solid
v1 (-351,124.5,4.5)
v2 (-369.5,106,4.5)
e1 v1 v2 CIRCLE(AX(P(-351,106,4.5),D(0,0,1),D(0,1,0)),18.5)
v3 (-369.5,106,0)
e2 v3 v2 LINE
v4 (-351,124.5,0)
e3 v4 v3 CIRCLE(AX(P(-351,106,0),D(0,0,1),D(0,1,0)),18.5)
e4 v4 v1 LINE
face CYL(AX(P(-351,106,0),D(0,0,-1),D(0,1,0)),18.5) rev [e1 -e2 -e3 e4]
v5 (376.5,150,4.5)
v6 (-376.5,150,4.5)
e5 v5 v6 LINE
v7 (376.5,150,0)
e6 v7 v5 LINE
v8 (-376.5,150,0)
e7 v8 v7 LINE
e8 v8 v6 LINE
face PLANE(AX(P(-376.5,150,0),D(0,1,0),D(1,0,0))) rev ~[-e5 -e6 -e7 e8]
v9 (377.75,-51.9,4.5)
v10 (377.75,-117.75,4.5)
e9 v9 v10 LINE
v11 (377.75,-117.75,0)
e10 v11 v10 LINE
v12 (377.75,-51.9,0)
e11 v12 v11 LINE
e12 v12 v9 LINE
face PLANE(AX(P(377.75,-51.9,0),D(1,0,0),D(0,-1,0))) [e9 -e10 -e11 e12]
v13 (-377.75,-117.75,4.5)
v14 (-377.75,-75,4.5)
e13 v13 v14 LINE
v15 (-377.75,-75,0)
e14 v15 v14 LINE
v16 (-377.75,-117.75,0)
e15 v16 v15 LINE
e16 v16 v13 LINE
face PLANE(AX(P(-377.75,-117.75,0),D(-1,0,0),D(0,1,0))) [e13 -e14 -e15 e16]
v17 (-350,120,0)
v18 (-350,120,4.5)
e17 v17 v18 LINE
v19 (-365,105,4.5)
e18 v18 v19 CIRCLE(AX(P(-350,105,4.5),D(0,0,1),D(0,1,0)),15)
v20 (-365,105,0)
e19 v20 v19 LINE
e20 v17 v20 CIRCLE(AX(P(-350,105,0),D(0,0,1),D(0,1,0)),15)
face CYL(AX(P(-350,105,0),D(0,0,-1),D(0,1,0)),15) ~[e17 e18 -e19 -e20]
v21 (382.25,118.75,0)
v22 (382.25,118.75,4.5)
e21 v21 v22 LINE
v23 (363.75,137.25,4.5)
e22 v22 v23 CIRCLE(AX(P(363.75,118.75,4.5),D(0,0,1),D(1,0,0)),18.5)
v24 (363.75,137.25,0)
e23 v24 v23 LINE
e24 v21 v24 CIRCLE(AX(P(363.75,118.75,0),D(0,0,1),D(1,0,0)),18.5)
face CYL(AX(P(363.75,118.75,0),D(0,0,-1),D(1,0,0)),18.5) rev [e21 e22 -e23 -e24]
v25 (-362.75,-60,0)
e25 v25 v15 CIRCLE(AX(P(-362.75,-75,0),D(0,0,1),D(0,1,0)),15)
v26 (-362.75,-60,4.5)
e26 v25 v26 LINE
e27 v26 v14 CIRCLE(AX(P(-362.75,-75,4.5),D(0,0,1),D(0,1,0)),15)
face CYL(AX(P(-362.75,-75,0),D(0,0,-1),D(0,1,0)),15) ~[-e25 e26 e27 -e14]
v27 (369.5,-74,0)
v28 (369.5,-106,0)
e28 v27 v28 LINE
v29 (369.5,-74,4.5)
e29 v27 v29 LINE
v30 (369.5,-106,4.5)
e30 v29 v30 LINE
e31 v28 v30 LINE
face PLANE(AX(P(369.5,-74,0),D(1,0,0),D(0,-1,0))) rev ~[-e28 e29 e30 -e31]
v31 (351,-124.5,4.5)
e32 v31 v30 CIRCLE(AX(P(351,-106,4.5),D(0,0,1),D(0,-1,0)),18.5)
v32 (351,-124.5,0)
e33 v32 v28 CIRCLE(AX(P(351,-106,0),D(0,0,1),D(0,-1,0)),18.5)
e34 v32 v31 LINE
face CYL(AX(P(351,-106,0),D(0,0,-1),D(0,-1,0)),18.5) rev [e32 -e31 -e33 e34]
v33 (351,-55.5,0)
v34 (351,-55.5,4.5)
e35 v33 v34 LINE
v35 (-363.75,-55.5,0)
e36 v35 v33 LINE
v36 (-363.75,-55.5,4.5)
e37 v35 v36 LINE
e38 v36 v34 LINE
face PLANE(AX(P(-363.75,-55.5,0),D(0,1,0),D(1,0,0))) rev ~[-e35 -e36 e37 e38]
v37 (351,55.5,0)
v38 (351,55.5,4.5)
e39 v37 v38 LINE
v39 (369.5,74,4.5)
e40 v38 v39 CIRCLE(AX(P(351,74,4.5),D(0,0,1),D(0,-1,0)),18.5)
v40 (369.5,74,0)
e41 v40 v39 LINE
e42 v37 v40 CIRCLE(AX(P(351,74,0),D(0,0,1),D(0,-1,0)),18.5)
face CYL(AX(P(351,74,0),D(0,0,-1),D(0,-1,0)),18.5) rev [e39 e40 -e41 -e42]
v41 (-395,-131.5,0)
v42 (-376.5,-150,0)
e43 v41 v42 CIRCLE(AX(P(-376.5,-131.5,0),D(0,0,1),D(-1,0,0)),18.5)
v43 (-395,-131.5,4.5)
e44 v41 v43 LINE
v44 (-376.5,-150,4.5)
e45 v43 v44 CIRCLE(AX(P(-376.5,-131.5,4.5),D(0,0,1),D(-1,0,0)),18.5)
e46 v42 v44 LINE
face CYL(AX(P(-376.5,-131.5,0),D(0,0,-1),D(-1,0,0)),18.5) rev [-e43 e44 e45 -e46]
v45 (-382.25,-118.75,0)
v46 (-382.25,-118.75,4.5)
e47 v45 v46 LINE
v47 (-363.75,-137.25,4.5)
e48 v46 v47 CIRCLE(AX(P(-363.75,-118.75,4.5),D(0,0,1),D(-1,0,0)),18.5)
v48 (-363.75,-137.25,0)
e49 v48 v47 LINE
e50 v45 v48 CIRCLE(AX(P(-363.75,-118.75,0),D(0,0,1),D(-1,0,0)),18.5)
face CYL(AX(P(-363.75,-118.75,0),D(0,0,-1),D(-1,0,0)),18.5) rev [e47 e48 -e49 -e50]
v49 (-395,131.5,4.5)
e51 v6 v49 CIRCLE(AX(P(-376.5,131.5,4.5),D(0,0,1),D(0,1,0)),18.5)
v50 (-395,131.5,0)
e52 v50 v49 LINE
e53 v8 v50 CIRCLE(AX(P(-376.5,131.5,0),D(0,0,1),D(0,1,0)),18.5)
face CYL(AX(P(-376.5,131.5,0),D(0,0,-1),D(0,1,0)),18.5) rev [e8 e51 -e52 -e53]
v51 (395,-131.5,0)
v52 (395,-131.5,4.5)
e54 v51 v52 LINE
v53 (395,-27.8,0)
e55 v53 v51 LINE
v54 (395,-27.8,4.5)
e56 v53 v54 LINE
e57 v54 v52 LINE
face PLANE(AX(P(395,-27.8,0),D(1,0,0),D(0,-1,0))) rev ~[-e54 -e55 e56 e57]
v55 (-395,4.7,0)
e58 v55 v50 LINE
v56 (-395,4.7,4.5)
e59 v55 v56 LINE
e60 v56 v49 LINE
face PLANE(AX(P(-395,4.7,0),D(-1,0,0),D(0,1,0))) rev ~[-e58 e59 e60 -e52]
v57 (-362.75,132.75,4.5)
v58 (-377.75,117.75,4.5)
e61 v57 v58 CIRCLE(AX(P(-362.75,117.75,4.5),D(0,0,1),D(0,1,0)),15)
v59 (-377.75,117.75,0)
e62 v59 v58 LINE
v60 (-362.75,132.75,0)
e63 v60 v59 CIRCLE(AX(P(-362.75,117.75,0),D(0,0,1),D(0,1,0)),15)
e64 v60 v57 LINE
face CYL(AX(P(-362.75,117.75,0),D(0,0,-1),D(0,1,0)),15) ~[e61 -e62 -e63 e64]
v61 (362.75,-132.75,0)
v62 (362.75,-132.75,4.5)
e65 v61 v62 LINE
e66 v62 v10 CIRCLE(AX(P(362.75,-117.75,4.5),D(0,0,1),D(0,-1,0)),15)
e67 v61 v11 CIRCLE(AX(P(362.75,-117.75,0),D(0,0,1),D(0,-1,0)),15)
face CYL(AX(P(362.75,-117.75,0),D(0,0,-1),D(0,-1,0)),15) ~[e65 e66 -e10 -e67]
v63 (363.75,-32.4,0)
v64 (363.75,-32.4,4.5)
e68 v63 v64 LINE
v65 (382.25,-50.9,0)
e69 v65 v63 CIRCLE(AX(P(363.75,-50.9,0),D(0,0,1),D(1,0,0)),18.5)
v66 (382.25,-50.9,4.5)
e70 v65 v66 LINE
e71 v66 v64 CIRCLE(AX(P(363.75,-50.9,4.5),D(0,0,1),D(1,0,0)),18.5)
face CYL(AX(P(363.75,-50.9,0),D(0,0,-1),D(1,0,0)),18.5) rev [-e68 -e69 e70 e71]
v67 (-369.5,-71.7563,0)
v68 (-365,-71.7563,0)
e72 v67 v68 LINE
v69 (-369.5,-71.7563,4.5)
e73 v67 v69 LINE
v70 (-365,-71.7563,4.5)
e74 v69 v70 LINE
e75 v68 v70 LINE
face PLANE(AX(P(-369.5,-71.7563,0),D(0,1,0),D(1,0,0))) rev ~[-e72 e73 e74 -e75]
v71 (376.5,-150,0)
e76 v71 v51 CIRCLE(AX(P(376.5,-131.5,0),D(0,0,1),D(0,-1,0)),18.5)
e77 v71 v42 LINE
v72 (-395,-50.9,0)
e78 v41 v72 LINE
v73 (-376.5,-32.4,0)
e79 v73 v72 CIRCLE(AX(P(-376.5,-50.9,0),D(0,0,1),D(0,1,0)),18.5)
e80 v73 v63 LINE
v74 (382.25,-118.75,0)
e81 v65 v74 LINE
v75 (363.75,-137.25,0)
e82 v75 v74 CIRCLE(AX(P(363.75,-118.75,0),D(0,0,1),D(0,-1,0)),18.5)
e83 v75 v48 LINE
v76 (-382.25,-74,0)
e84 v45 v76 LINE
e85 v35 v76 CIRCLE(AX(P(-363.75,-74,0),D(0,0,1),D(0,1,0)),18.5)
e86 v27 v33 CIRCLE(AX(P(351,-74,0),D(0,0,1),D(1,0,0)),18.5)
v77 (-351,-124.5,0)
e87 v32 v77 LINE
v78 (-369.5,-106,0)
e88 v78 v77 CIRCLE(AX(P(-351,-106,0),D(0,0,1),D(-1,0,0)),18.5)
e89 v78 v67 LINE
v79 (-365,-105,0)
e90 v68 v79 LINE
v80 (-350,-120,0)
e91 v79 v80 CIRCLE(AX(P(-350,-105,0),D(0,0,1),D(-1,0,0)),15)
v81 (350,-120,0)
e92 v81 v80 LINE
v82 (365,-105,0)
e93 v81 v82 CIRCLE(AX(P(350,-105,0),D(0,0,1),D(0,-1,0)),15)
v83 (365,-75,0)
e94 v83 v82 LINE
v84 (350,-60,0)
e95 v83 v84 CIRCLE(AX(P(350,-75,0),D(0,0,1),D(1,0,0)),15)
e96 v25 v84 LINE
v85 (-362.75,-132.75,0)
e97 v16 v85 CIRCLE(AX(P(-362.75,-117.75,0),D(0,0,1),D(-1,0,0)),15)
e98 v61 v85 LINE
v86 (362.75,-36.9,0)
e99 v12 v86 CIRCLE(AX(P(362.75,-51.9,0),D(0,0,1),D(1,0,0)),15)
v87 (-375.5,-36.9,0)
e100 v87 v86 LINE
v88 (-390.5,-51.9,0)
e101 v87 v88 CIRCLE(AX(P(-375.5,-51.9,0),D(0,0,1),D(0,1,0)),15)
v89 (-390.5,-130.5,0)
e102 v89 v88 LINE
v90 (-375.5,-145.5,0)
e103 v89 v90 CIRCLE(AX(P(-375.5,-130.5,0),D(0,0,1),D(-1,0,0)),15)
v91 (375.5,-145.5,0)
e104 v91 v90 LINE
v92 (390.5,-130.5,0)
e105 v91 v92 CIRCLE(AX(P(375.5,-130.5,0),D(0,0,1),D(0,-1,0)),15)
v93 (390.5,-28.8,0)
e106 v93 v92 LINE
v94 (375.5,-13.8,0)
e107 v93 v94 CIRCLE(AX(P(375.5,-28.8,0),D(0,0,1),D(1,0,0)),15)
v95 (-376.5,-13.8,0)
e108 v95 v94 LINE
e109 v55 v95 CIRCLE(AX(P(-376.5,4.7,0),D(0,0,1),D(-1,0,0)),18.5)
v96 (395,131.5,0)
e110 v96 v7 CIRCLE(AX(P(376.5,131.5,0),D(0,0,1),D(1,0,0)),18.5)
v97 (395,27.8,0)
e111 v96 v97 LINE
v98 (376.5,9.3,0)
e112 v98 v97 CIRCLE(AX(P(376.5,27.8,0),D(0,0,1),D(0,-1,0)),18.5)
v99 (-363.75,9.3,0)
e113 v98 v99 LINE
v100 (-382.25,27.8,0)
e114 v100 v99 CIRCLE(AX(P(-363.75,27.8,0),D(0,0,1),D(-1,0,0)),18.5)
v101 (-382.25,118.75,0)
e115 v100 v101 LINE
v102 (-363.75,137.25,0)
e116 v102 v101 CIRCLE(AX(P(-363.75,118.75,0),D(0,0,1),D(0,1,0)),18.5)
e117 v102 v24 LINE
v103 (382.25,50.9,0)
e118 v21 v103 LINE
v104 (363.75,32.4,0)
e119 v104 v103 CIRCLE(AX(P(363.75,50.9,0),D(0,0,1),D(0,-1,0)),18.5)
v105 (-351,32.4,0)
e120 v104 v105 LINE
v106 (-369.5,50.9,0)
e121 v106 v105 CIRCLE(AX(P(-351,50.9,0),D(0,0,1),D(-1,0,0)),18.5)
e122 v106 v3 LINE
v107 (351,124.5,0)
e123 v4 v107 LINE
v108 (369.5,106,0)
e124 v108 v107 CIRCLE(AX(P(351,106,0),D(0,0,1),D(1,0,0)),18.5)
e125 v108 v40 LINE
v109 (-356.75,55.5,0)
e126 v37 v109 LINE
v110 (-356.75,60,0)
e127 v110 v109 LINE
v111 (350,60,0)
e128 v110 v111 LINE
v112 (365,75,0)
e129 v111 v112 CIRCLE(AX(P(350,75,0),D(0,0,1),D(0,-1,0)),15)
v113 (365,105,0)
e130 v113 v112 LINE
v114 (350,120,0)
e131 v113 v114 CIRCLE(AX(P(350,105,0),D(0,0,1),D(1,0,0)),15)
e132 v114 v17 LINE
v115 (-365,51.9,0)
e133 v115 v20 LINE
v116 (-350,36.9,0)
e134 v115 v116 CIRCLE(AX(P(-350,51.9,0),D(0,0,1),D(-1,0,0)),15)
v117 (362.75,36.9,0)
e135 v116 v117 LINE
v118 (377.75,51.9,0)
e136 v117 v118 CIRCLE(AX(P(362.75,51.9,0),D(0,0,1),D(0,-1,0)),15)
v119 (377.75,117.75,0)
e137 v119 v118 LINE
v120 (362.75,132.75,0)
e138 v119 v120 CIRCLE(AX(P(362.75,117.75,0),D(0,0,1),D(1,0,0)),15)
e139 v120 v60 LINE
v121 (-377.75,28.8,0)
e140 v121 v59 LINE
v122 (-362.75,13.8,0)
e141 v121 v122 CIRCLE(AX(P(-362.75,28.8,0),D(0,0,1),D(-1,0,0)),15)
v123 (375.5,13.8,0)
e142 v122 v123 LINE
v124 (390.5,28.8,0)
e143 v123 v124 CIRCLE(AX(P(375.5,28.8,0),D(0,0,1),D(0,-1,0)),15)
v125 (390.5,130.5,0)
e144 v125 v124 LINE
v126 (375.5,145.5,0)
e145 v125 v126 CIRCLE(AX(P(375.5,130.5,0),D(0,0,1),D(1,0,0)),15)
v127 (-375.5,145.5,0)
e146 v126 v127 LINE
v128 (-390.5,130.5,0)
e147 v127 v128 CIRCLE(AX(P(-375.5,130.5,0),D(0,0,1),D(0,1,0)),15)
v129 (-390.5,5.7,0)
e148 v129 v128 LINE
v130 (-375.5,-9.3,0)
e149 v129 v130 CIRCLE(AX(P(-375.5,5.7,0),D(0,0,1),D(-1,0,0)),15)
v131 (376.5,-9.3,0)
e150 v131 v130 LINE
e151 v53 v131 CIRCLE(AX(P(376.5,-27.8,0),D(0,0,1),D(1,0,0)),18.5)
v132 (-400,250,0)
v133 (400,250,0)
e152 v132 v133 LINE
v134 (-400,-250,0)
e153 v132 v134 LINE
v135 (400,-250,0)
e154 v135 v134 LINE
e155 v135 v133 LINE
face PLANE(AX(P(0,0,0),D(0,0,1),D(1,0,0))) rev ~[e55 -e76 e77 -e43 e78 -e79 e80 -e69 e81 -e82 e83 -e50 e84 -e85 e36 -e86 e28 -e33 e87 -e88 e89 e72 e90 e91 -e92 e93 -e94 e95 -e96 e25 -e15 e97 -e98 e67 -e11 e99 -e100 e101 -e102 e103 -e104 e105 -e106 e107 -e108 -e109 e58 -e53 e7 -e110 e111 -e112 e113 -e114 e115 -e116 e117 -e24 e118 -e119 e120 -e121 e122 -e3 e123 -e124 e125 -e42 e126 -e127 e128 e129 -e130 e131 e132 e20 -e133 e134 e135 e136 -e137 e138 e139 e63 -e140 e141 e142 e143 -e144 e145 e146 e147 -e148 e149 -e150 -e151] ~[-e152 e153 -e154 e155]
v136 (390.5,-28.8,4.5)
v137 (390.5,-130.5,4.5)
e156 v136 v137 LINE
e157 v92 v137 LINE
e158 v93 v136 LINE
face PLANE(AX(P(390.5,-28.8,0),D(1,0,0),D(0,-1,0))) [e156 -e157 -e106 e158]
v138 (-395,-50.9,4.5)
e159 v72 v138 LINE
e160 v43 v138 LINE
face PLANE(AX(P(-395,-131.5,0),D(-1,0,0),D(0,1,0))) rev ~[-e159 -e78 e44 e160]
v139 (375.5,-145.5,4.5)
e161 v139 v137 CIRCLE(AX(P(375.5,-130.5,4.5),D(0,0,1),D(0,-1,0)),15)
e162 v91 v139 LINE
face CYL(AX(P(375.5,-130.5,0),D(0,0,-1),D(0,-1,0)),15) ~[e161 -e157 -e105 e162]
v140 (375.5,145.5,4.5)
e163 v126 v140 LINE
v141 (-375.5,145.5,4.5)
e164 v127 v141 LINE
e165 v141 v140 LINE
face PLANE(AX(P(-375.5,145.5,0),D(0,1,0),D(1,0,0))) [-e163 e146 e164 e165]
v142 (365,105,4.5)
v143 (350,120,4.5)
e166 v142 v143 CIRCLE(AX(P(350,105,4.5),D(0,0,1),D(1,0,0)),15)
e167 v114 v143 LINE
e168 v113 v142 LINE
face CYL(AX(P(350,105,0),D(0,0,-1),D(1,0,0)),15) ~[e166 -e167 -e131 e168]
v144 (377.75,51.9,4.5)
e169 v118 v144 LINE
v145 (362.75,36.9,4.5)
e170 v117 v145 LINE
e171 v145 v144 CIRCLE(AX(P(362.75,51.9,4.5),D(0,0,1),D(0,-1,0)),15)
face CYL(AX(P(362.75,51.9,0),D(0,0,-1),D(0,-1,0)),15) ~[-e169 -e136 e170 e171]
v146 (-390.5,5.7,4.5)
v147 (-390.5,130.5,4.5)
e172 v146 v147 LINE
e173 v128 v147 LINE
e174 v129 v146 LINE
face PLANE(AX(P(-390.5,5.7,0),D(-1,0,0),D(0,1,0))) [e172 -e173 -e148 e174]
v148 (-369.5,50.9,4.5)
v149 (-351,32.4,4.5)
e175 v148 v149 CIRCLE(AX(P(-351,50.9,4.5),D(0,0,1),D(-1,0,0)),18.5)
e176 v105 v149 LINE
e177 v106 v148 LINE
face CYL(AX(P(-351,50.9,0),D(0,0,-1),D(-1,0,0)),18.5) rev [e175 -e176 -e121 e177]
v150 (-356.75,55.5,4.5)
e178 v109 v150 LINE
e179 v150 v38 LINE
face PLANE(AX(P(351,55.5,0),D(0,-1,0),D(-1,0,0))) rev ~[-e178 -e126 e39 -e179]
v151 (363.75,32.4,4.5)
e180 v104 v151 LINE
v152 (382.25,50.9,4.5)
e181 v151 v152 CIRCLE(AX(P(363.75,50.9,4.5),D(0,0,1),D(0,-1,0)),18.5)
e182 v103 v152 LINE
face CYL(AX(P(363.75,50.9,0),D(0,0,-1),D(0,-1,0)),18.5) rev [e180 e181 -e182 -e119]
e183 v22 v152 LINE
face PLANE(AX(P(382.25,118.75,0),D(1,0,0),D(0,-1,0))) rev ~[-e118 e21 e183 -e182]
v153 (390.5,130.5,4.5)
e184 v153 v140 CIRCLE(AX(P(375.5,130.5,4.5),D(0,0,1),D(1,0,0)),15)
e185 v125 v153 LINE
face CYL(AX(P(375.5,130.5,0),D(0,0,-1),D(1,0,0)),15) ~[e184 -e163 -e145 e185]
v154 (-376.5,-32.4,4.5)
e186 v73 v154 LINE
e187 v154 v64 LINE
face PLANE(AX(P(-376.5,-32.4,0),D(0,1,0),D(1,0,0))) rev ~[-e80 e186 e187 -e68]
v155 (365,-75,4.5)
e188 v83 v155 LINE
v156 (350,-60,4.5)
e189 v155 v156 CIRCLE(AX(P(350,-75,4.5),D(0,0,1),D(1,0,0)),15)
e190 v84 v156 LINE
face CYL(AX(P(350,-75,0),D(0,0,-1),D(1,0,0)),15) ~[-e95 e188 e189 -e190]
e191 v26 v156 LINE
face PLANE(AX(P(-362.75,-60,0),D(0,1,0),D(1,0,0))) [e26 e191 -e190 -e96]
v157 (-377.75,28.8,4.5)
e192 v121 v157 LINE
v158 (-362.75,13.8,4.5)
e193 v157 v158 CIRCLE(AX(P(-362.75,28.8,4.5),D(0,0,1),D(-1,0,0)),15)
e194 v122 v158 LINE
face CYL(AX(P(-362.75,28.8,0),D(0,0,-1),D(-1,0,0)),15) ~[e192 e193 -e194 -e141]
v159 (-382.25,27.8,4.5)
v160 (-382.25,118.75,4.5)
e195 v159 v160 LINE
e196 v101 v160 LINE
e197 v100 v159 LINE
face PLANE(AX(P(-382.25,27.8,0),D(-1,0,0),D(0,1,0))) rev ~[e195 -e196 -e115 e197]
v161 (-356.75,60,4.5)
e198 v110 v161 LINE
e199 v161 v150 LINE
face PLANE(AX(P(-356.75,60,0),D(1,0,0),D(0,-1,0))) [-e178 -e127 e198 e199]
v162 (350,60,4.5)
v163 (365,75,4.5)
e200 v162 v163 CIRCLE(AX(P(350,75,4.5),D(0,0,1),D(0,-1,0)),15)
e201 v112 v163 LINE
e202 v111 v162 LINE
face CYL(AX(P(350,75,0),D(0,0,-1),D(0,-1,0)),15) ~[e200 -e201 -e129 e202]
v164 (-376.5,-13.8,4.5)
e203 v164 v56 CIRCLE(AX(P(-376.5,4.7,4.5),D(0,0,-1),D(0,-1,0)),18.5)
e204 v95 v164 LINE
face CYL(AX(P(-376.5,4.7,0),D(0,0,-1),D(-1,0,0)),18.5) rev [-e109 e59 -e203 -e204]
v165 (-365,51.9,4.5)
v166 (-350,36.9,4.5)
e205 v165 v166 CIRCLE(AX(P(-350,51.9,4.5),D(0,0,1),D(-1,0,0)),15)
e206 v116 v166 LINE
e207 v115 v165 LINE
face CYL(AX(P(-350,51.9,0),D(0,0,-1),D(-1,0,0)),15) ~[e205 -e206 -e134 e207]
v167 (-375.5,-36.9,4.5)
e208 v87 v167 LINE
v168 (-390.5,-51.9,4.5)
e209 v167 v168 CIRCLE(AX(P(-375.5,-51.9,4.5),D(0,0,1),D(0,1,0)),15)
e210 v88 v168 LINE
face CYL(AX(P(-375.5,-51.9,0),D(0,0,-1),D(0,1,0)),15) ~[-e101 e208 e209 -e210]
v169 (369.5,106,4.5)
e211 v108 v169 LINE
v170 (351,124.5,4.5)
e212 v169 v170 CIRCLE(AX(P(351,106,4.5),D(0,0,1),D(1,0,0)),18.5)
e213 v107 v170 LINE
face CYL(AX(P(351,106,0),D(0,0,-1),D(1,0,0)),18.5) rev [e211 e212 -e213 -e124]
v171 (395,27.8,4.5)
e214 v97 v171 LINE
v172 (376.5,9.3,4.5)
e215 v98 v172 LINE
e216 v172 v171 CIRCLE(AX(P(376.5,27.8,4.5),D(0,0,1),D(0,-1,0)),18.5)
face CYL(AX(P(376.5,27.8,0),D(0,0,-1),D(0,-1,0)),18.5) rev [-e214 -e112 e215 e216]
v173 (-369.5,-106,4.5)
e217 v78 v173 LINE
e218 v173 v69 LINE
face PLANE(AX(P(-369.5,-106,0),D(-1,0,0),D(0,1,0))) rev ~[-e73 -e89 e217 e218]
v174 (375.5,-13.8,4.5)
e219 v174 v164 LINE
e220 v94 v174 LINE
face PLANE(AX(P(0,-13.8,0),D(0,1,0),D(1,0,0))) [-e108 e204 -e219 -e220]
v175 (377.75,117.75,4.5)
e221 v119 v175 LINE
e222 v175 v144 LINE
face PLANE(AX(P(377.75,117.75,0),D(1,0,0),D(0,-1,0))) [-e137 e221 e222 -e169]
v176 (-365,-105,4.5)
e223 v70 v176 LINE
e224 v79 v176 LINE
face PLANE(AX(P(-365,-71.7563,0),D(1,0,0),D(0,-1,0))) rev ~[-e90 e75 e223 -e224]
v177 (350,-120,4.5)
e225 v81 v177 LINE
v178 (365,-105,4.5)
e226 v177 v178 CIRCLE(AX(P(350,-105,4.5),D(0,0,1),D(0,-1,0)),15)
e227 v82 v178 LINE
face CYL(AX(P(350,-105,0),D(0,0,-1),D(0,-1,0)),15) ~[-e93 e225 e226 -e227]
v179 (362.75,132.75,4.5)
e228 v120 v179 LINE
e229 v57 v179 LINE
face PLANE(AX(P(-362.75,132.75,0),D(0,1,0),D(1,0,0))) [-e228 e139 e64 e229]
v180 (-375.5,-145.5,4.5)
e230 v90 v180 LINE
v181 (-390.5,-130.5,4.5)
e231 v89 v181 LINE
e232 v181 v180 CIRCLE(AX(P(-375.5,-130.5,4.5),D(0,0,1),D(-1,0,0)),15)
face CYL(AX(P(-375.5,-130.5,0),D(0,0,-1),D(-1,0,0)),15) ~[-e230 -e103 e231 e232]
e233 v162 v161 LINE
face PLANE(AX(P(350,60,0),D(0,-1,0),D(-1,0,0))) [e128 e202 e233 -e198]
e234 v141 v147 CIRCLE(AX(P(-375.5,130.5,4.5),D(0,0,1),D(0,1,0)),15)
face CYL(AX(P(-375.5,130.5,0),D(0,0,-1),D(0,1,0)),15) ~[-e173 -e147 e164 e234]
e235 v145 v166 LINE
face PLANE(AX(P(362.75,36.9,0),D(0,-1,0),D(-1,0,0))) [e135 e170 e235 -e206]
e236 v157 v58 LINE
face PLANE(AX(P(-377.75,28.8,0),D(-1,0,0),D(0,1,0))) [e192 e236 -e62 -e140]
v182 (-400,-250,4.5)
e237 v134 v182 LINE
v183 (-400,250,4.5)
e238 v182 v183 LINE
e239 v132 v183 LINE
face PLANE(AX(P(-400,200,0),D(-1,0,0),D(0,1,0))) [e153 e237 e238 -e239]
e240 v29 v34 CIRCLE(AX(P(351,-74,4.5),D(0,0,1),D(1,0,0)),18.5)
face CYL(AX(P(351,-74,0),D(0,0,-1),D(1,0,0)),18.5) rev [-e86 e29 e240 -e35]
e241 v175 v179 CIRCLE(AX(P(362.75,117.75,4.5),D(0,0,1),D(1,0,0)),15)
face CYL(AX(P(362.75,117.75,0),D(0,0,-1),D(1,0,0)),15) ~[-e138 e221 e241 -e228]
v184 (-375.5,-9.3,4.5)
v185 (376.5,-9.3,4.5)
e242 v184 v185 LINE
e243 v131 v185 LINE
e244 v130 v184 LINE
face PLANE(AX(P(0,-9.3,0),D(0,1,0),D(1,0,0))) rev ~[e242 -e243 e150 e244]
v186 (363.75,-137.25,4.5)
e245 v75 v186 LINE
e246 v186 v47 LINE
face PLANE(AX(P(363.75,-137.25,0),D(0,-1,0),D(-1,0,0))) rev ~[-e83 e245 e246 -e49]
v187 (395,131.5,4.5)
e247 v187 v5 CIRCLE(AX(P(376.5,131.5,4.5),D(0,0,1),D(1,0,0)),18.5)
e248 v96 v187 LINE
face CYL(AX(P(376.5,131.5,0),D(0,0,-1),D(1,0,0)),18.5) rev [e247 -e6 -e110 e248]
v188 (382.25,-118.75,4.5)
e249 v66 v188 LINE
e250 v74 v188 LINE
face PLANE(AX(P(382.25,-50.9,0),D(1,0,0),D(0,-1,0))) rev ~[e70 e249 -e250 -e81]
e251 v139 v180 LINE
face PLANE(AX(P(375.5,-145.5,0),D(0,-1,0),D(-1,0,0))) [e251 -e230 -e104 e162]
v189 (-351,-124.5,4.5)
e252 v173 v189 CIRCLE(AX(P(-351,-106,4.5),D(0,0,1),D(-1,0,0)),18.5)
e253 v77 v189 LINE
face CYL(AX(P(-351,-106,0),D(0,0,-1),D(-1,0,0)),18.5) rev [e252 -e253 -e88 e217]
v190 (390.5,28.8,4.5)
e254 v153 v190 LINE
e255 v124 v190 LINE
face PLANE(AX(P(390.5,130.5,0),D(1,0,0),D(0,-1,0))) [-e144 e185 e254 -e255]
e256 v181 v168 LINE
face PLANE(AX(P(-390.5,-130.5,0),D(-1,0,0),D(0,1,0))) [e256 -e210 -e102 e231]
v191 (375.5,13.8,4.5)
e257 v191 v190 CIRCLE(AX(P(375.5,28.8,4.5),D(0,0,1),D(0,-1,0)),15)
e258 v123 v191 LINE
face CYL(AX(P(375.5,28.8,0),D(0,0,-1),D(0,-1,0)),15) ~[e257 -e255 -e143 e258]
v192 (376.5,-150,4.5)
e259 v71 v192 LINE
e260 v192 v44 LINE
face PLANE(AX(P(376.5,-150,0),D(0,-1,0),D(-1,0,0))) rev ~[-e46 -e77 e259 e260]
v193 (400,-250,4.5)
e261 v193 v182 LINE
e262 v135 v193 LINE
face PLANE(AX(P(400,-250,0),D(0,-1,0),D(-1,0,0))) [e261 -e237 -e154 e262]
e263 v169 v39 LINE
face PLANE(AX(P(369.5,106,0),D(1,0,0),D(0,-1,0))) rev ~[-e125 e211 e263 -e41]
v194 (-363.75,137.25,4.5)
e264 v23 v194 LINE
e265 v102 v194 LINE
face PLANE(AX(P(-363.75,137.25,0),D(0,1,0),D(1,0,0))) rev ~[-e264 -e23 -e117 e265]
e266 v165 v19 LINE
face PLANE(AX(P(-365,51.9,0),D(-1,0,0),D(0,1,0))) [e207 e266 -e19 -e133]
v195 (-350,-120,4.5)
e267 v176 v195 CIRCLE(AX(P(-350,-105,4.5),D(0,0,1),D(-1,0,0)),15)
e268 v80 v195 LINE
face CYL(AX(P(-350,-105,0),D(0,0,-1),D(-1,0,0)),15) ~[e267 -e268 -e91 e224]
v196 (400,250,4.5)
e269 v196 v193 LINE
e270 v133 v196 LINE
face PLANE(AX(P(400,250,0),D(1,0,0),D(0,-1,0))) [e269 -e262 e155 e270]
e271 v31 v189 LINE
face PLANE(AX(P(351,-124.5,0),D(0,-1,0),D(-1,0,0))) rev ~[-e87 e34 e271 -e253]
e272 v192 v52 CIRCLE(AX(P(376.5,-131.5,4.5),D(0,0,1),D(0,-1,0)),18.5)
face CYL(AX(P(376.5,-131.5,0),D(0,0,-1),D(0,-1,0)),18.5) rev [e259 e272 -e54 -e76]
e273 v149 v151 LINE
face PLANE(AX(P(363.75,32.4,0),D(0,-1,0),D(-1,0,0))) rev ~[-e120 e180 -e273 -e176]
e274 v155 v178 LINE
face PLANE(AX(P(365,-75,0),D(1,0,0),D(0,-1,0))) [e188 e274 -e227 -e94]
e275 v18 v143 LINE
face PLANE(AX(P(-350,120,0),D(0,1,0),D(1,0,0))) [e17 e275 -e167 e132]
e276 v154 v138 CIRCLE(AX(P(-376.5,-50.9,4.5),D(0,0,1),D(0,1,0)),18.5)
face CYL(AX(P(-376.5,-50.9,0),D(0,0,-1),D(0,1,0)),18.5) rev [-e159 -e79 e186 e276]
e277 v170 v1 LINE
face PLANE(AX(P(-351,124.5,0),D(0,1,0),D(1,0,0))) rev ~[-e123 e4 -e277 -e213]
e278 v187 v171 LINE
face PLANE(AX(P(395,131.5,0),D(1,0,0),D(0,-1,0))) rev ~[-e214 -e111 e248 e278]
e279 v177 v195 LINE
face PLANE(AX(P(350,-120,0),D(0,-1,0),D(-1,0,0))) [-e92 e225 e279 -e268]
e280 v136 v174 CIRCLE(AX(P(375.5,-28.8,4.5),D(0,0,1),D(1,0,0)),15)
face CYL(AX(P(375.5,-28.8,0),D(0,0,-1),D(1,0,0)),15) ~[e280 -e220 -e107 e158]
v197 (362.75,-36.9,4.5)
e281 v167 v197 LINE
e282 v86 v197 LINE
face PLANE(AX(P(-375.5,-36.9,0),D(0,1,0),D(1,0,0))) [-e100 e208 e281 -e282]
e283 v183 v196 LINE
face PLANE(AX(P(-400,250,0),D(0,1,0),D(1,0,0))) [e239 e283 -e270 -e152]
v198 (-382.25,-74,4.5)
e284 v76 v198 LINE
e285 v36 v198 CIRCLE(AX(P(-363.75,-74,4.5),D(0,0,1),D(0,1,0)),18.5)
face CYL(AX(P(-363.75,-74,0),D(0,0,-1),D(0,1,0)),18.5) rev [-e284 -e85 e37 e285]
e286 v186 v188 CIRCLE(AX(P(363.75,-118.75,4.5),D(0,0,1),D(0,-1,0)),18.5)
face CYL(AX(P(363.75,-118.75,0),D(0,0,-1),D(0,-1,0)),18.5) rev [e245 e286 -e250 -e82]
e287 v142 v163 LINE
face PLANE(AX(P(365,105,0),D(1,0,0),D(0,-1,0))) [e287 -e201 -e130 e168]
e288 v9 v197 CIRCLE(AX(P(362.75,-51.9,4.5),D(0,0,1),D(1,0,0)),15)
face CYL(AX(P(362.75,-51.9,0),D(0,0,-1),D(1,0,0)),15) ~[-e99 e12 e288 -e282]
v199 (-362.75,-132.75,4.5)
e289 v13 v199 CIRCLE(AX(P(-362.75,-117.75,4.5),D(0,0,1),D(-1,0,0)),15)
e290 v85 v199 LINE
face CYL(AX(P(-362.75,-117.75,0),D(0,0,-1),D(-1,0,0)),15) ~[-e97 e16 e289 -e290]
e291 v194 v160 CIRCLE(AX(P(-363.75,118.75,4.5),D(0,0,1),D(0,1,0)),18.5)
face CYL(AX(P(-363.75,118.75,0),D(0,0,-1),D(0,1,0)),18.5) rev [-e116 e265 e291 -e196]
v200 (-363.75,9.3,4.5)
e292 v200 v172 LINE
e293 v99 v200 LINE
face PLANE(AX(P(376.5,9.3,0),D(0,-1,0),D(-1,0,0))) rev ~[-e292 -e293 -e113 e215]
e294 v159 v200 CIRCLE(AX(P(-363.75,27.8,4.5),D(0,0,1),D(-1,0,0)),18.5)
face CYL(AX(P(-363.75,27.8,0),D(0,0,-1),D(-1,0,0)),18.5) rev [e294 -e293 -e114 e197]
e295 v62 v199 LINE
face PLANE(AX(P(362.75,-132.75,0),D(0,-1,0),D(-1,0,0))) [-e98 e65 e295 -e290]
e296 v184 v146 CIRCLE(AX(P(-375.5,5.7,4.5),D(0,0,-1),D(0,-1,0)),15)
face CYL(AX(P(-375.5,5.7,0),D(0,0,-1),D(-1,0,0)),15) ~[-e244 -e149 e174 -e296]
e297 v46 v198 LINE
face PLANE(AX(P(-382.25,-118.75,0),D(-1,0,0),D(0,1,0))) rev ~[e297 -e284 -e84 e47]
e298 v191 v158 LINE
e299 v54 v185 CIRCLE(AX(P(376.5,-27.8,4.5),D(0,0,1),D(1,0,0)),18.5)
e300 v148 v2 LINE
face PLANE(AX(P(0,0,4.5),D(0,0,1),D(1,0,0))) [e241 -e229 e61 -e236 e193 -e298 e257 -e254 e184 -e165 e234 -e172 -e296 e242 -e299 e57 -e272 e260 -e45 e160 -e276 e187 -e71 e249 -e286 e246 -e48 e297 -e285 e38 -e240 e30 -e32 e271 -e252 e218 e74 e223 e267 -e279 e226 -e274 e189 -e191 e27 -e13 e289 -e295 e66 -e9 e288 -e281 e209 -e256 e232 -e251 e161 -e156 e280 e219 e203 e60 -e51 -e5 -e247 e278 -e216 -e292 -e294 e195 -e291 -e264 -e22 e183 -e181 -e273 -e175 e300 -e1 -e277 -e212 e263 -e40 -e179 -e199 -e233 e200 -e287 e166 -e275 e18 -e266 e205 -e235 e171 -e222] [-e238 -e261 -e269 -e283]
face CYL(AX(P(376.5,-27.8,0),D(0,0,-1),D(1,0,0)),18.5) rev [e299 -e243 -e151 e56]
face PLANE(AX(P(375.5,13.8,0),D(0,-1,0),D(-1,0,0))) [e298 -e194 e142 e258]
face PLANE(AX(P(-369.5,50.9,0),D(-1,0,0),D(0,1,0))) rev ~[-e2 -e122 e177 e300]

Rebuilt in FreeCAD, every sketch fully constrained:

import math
import FreeCAD as App
import Part
import Sketcher
from FreeCAD import Vector
Q = App.Units.Quantity

doc = App.newDocument("Part")
body = doc.addObject("PartDesign::Body", "Body")

# Sketch on XY plane
sketch1 = body.newObject("Sketcher::SketchObject", "Sketch")
sketch1.AttachmentSupport = (doc.getObject("XY_Plane"), [""])
sketch1.MapMode = "FlatFace"
sketch1.addGeometry([
    Part.LineSegment(Vector(400, 250, 0), Vector(-400, 250, 0)),
    Part.LineSegment(Vector(-400, 250, 0), Vector(-400, -250, 0)),
    Part.LineSegment(Vector(-400, -250, 0), Vector(400, -250, 0)),
    Part.LineSegment(Vector(400, -250, 0), Vector(400, 250, 0)),
], False)
sketch1.addConstraint([
    Sketcher.Constraint("Coincident", 0, 2, 1, 1),
    Sketcher.Constraint("Coincident", 1, 2, 2, 1),
    Sketcher.Constraint("Coincident", 2, 2, 3, 1),
    Sketcher.Constraint("Coincident", 3, 2, 0, 1),
    Sketcher.Constraint("Horizontal", 0),
    Sketcher.Constraint("Vertical", 1),
    Sketcher.Constraint("Horizontal", 2),
    Sketcher.Constraint("Vertical", 3),
    Sketcher.Constraint("Symmetric", 0, 2, 2, 2, -1, 1),
    Sketcher.Constraint("DistanceX", 0, 2, 0, 1, Q("800 mm")),
    Sketcher.Constraint("DistanceY", 1, 2, 1, 1, Q("500 mm")),
])
pad1 = body.newObject("PartDesign::Pad", "Pad")
pad1.Profile = sketch1
pad1.Length = 4.5

# Sketch on XY plane
sketch2 = body.newObject("Sketcher::SketchObject", "Sketch001")
sketch2.AttachmentSupport = (doc.getObject("XY_Plane"), [""])
sketch2.MapMode = "FlatFace"
sketch2.addGeometry([
    Part.LineSegment(Vector(-376.5, -13.8, 0), Vector(0, -13.8, 0)),  # 0
    Part.LineSegment(Vector(0, -13.8, 0), Vector(0, -9.3, 0)),  # 1
    Part.LineSegment(Vector(0, -9.3, 0), Vector(-375.5, -9.3, 0)),  # 2
    Part.ArcOfCircle(Part.Circle(Vector(-375.5, 5.7, 0), Vector(0, 0, 1), 15), math.radians(180), math.radians(270)),  # 3
    Part.LineSegment(Vector(-390.5, 5.7, 0), Vector(-390.5, 130.5, 0)),  # 4
    Part.ArcOfCircle(Part.Circle(Vector(-375.5, 130.5, 0), Vector(0, 0, 1), 15), math.radians(90), math.radians(180)),  # 5
    Part.LineSegment(Vector(-375.5, 145.5, 0), Vector(375.5, 145.5, 0)),  # 6
    Part.ArcOfCircle(Part.Circle(Vector(375.5, 130.5, 0), Vector(0, 0, 1), 15), math.radians(0), math.radians(90)),  # 7
    Part.LineSegment(Vector(390.5, 130.5, 0), Vector(390.5, 28.8, 0)),  # 8
    Part.ArcOfCircle(Part.Circle(Vector(375.5, 28.8, 0), Vector(0, 0, 1), 15), math.radians(-90), math.radians(0)),  # 9
    Part.LineSegment(Vector(375.5, 13.8, 0), Vector(-362.8, 13.8, 0)),  # 10
    Part.ArcOfCircle(Part.Circle(Vector(-362.8, 28.8, 0), Vector(0, 0, 1), 15), math.radians(180), math.radians(270)),  # 11
    Part.LineSegment(Vector(-377.8, 28.8, 0), Vector(-377.8, 117.8, 0)),  # 12
    Part.ArcOfCircle(Part.Circle(Vector(-362.8, 117.8, 0), Vector(0, 0, 1), 15), math.radians(90), math.radians(180)),  # 13
    Part.LineSegment(Vector(-362.8, 132.8, 0), Vector(362.8, 132.8, 0)),  # 14
    Part.ArcOfCircle(Part.Circle(Vector(362.8, 117.8, 0), Vector(0, 0, 1), 15), math.radians(0), math.radians(90)),  # 15
    Part.LineSegment(Vector(377.8, 117.8, 0), Vector(377.8, 51.9, 0)),  # 16
    Part.ArcOfCircle(Part.Circle(Vector(362.8, 51.9, 0), Vector(0, 0, 1), 15), math.radians(-90), math.radians(0)),  # 17
    Part.LineSegment(Vector(362.8, 36.9, 0), Vector(-350, 36.9, 0)),  # 18
    Part.ArcOfCircle(Part.Circle(Vector(-350, 51.9, 0), Vector(0, 0, 1), 15), math.radians(180), math.radians(270)),  # 19
    Part.LineSegment(Vector(-365, 51.9, 0), Vector(-365, 105, 0)),  # 20
    Part.ArcOfCircle(Part.Circle(Vector(-350, 105, 0), Vector(0, 0, 1), 15), math.radians(90), math.radians(180)),  # 21
    Part.LineSegment(Vector(-350, 120, 0), Vector(350, 120, 0)),  # 22
    Part.ArcOfCircle(Part.Circle(Vector(350, 105, 0), Vector(0, 0, 1), 15), math.radians(0), math.radians(90)),  # 23
    Part.LineSegment(Vector(365, 105, 0), Vector(365, 75, 0)),  # 24
    Part.ArcOfCircle(Part.Circle(Vector(350, 75, 0), Vector(0, 0, 1), 15), math.radians(-90), math.radians(0)),  # 25
    Part.LineSegment(Vector(350, 60, 0), Vector(-356.8, 60, 0)),  # 26
    Part.LineSegment(Vector(-356.8, 60, 0), Vector(-356.8, 55.5, 0)),  # 27
    Part.LineSegment(Vector(-356.8, 55.5, 0), Vector(351, 55.5, 0)),  # 28
    Part.ArcOfCircle(Part.Circle(Vector(351, 74, 0), Vector(0, 0, 1), 18.5), math.radians(-90), math.radians(0)),  # 29
    Part.LineSegment(Vector(369.5, 74, 0), Vector(369.5, 106, 0)),  # 30
    Part.ArcOfCircle(Part.Circle(Vector(351, 106, 0), Vector(0, 0, 1), 18.5), math.radians(0), math.radians(90)),  # 31
    Part.LineSegment(Vector(351, 124.5, 0), Vector(-351, 124.5, 0)),  # 32
    Part.ArcOfCircle(Part.Circle(Vector(-351, 106, 0), Vector(0, 0, 1), 18.5), math.radians(90), math.radians(180)),  # 33
    Part.LineSegment(Vector(-369.5, 106, 0), Vector(-369.5, 50.9, 0)),  # 34
    Part.ArcOfCircle(Part.Circle(Vector(-351, 50.9, 0), Vector(0, 0, 1), 18.5), math.radians(180), math.radians(270)),  # 35
    Part.LineSegment(Vector(-351, 32.4, 0), Vector(363.8, 32.4, 0)),  # 36
    Part.ArcOfCircle(Part.Circle(Vector(363.8, 50.9, 0), Vector(0, 0, 1), 18.5), math.radians(-90), math.radians(0)),  # 37
    Part.LineSegment(Vector(382.2, 50.9, 0), Vector(382.2, 118.8, 0)),  # 38
    Part.ArcOfCircle(Part.Circle(Vector(363.8, 118.8, 0), Vector(0, 0, 1), 18.5), math.radians(0), math.radians(90)),  # 39
    Part.LineSegment(Vector(363.8, 137.2, 0), Vector(-363.8, 137.2, 0)),  # 40
    Part.ArcOfCircle(Part.Circle(Vector(-363.8, 118.8, 0), Vector(0, 0, 1), 18.5), math.radians(90), math.radians(180)),  # 41
    Part.LineSegment(Vector(-382.2, 118.8, 0), Vector(-382.2, 27.8, 0)),  # 42
    Part.ArcOfCircle(Part.Circle(Vector(-363.8, 27.8, 0), Vector(0, 0, 1), 18.5), math.radians(180), math.radians(270)),  # 43
    Part.LineSegment(Vector(-363.8, 9.3, 0), Vector(376.5, 9.3, 0)),  # 44
    Part.ArcOfCircle(Part.Circle(Vector(376.5, 27.8, 0), Vector(0, 0, 1), 18.5), math.radians(-90), math.radians(0)),  # 45
    Part.LineSegment(Vector(395, 27.8, 0), Vector(395, 131.5, 0)),  # 46
    Part.ArcOfCircle(Part.Circle(Vector(376.5, 131.5, 0), Vector(0, 0, 1), 18.5), math.radians(0), math.radians(90)),  # 47
    Part.LineSegment(Vector(376.5, 150, 0), Vector(-376.5, 150, 0)),  # 48
    Part.ArcOfCircle(Part.Circle(Vector(-376.5, 131.5, 0), Vector(0, 0, 1), 18.5), math.radians(90), math.radians(180)),  # 49
    Part.LineSegment(Vector(-395, 131.5, 0), Vector(-395, 4.7, 0)),  # 50
    Part.ArcOfCircle(Part.Circle(Vector(-376.5, 4.7, 0), Vector(0, 0, 1), 18.5), math.radians(180), math.radians(270)),  # 51
], False)
sketch2.addConstraint([
    Sketcher.Constraint("Coincident", 0, 2, 1, 1),
    Sketcher.Constraint("Coincident", 1, 2, 2, 1),
    Sketcher.Constraint("Tangent", 2, 2, 3, 2),
    Sketcher.Constraint("Tangent", 3, 1, 4, 1),
    Sketcher.Constraint("Tangent", 4, 2, 5, 2),
    Sketcher.Constraint("Tangent", 5, 1, 6, 1),
    Sketcher.Constraint("Tangent", 6, 2, 7, 2),
    Sketcher.Constraint("Tangent", 7, 1, 8, 1),
    Sketcher.Constraint("Tangent", 8, 2, 9, 2),
    Sketcher.Constraint("Tangent", 9, 1, 10, 1),
    Sketcher.Constraint("Tangent", 10, 2, 11, 2),
    Sketcher.Constraint("Tangent", 11, 1, 12, 1),
    Sketcher.Constraint("Tangent", 12, 2, 13, 2),
    Sketcher.Constraint("Tangent", 13, 1, 14, 1),
    Sketcher.Constraint("Tangent", 14, 2, 15, 2),
    Sketcher.Constraint("Tangent", 15, 1, 16, 1),
    Sketcher.Constraint("Tangent", 16, 2, 17, 2),
    Sketcher.Constraint("Tangent", 17, 1, 18, 1),
    Sketcher.Constraint("Tangent", 18, 2, 19, 2),
    Sketcher.Constraint("Tangent", 19, 1, 20, 1),
    Sketcher.Constraint("Tangent", 20, 2, 21, 2),
    Sketcher.Constraint("Tangent", 21, 1, 22, 1),
    Sketcher.Constraint("Tangent", 22, 2, 23, 2),
    Sketcher.Constraint("Tangent", 23, 1, 24, 1),
    Sketcher.Constraint("Tangent", 24, 2, 25, 2),
    Sketcher.Constraint("Tangent", 25, 1, 26, 1),
    Sketcher.Constraint("Coincident", 26, 2, 27, 1),
    Sketcher.Constraint("Coincident", 27, 2, 28, 1),
    Sketcher.Constraint("Tangent", 28, 2, 29, 1),
    Sketcher.Constraint("Tangent", 29, 2, 30, 1),
    Sketcher.Constraint("Tangent", 30, 2, 31, 1),
    Sketcher.Constraint("Tangent", 31, 2, 32, 1),
    Sketcher.Constraint("Tangent", 32, 2, 33, 1),
    Sketcher.Constraint("Tangent", 33, 2, 34, 1),
    Sketcher.Constraint("Tangent", 34, 2, 35, 1),
    Sketcher.Constraint("Tangent", 35, 2, 36, 1),
    Sketcher.Constraint("Tangent", 36, 2, 37, 1),
    Sketcher.Constraint("Tangent", 37, 2, 38, 1),
    Sketcher.Constraint("Tangent", 38, 2, 39, 1),
    Sketcher.Constraint("Tangent", 39, 2, 40, 1),
    Sketcher.Constraint("Tangent", 40, 2, 41, 1),
    Sketcher.Constraint("Tangent", 41, 2, 42, 1),
    Sketcher.Constraint("Tangent", 42, 2, 43, 1),
    Sketcher.Constraint("Tangent", 43, 2, 44, 1),
    Sketcher.Constraint("Tangent", 44, 2, 45, 1),
    Sketcher.Constraint("Tangent", 45, 2, 46, 1),
    Sketcher.Constraint("Tangent", 46, 2, 47, 1),
    Sketcher.Constraint("Tangent", 47, 2, 48, 1),
    Sketcher.Constraint("Tangent", 48, 2, 49, 1),
    Sketcher.Constraint("Tangent", 49, 2, 50, 1),
    Sketcher.Constraint("Tangent", 50, 2, 51, 1),
    Sketcher.Constraint("Tangent", 51, 2, 0, 1),
    Sketcher.Constraint("Horizontal", 0),
    Sketcher.Constraint("Vertical", 1),
    Sketcher.Constraint("Horizontal", 2),
    Sketcher.Constraint("Vertical", 4),
    Sketcher.Constraint("Horizontal", 6),
    Sketcher.Constraint("Vertical", 8),
    Sketcher.Constraint("Horizontal", 10),
    Sketcher.Constraint("Vertical", 12),
    Sketcher.Constraint("Horizontal", 14),
    Sketcher.Constraint("Vertical", 16),
    Sketcher.Constraint("Horizontal", 18),
    Sketcher.Constraint("Vertical", 20),
    Sketcher.Constraint("Horizontal", 22),
    Sketcher.Constraint("Vertical", 24),
    Sketcher.Constraint("Horizontal", 26),
    Sketcher.Constraint("Vertical", 27),
    Sketcher.Constraint("Horizontal", 28),
    Sketcher.Constraint("Vertical", 30),
    Sketcher.Constraint("Horizontal", 32),
    Sketcher.Constraint("Vertical", 34),
    Sketcher.Constraint("Horizontal", 36),
    Sketcher.Constraint("Vertical", 38),
    Sketcher.Constraint("Horizontal", 40),
    Sketcher.Constraint("Vertical", 42),
    Sketcher.Constraint("Horizontal", 44),
    Sketcher.Constraint("Vertical", 46),
    Sketcher.Constraint("Horizontal", 48),
    Sketcher.Constraint("Vertical", 50),
    Sketcher.Constraint("Equal", 3, 5),
    Sketcher.Constraint("Equal", 5, 7),
    Sketcher.Constraint("Equal", 7, 9),
    Sketcher.Constraint("Equal", 9, 11),
    Sketcher.Constraint("Equal", 11, 13),
    Sketcher.Constraint("Equal", 13, 15),
    Sketcher.Constraint("Equal", 15, 17),
    Sketcher.Constraint("Equal", 17, 19),
    Sketcher.Constraint("Equal", 19, 21),
    Sketcher.Constraint("Equal", 21, 23),
    Sketcher.Constraint("Equal", 23, 25),
    Sketcher.Constraint("Equal", 29, 31),
    Sketcher.Constraint("Equal", 31, 33),
    Sketcher.Constraint("Equal", 33, 35),
    Sketcher.Constraint("Equal", 35, 37),
    Sketcher.Constraint("Equal", 37, 39),
    Sketcher.Constraint("Equal", 39, 41),
    Sketcher.Constraint("Equal", 41, 43),
    Sketcher.Constraint("Equal", 43, 45),
    Sketcher.Constraint("Equal", 45, 47),
    Sketcher.Constraint("Equal", 47, 49),
    Sketcher.Constraint("Equal", 49, 51),
    Sketcher.Constraint("PointOnObject", 0, 2, -2),
    Sketcher.Constraint("Equal", 1, 27),
    Sketcher.Constraint("Radius", 3, Q("15 mm")),
    Sketcher.Constraint("Radius", 29, Q("18.5 mm")),
    Sketcher.Constraint("DistanceY", 1, 1, 1, 2, Q("4.5 mm")),
    Sketcher.Constraint("DistanceY", -1, 1, 47, 2, Q("150 mm")),
    Sketcher.Constraint("DistanceY", 1, 2, -1, 1, Q("9.3 mm")),
    Sketcher.Constraint("DistanceY", -1, 1, 43, 2, Q("9.3 mm")),
    Sketcher.Constraint("DistanceX", 6, 1, 6, 2, Q("751 mm")),
    Sketcher.Constraint("DistanceX", 22, 1, 22, 2, Q("700 mm")),
    Sketcher.Constraint("DistanceX", 32, 2, 32, 1, Q("702 mm")),
    Sketcher.Constraint("DistanceX", 48, 2, 48, 1, Q("753 mm")),
    Sketcher.Constraint("DistanceY", 24, 2, 24, 1, Q("30 mm")),
    Sketcher.Constraint("DistanceY", 30, 1, 30, 2, Q("32 mm")),
    Sketcher.Constraint("DistanceX", 0, 1, 0, 2, Q("376.5 mm")),
    Sketcher.Constraint("DistanceX", 2, 2, 2, 1, Q("375.5 mm")),
    Sketcher.Constraint("DistanceX", 14, 1, 14, 2, Q("725.5 mm")),
    Sketcher.Constraint("DistanceX", 40, 2, 40, 1, Q("727.5 mm")),
    Sketcher.Constraint("DistanceY", 4, 1, 4, 2, Q("124.8 mm")),
    Sketcher.Constraint("DistanceY", 8, 2, 8, 1, Q("101.7 mm")),
    Sketcher.Constraint("DistanceY", 20, 1, 20, 2, Q("53.1 mm")),
    Sketcher.Constraint("DistanceY", 34, 2, 34, 1, Q("55.1 mm")),
    Sketcher.Constraint("DistanceX", 19, 3, -1, 1, Q("350 mm")),
    Sketcher.Constraint("DistanceY", -1, 1, 21, 3, Q("105 mm")),
    Sketcher.Constraint("DistanceX", -1, 1, 29, 3, Q("351 mm")),
    Sketcher.Constraint("DistanceX", 10, 2, 10, 1, Q("738.25 mm")),
    Sketcher.Constraint("DistanceX", 26, 2, 26, 1, Q("706.75 mm")),
    Sketcher.Constraint("DistanceX", 36, 1, 36, 2, Q("714.75 mm")),
    Sketcher.Constraint("DistanceY", 12, 1, 12, 2, Q("88.95 mm")),
    Sketcher.Constraint("DistanceY", 38, 1, 38, 2, Q("67.85 mm")),
])
pocket1 = body.newObject("PartDesign::Pocket", "Pocket")
pocket1.Profile = sketch2
pocket1.Length = 4.5
pocket1.Reversed = True

# Sketch on XY plane
sketch3 = body.newObject("Sketcher::SketchObject", "Sketch002")
sketch3.AttachmentSupport = (doc.getObject("XY_Plane"), [""])
sketch3.MapMode = "FlatFace"
sketch3.addGeometry([
    Part.LineSegment(Vector(376.5, -9.3, 0), Vector(0, -9.3, 0)),  # 0
    Part.LineSegment(Vector(0, -9.3, 0), Vector(0, -13.8, 0)),  # 1
    Part.LineSegment(Vector(0, -13.8, 0), Vector(375.5, -13.8, 0)),  # 2
    Part.ArcOfCircle(Part.Circle(Vector(375.5, -28.8, 0), Vector(0, 0, 1), 15), math.radians(0), math.radians(90)),  # 3
    Part.LineSegment(Vector(390.5, -28.8, 0), Vector(390.5, -130.5, 0)),  # 4
    Part.ArcOfCircle(Part.Circle(Vector(375.5, -130.5, 0), Vector(0, 0, 1), 15), math.radians(-90), math.radians(0)),  # 5
    Part.LineSegment(Vector(375.5, -145.5, 0), Vector(-375.5, -145.5, 0)),  # 6
    Part.ArcOfCircle(Part.Circle(Vector(-375.5, -130.5, 0), Vector(0, 0, 1), 15), math.radians(180), math.radians(270)),  # 7
    Part.LineSegment(Vector(-390.5, -130.5, 0), Vector(-390.5, -51.9, 0)),  # 8
    Part.ArcOfCircle(Part.Circle(Vector(-375.5, -51.9, 0), Vector(0, 0, 1), 15), math.radians(90), math.radians(180)),  # 9
    Part.LineSegment(Vector(-375.5, -36.9, 0), Vector(362.8, -36.9, 0)),  # 10
    Part.ArcOfCircle(Part.Circle(Vector(362.8, -51.9, 0), Vector(0, 0, 1), 15), math.radians(0), math.radians(90)),  # 11
    Part.LineSegment(Vector(377.8, -51.9, 0), Vector(377.8, -117.8, 0)),  # 12
    Part.ArcOfCircle(Part.Circle(Vector(362.8, -117.8, 0), Vector(0, 0, 1), 15), math.radians(-90), math.radians(0)),  # 13
    Part.LineSegment(Vector(362.8, -132.8, 0), Vector(-362.8, -132.8, 0)),  # 14
    Part.ArcOfCircle(Part.Circle(Vector(-362.8, -117.8, 0), Vector(0, 0, 1), 15), math.radians(180), math.radians(270)),  # 15
    Part.LineSegment(Vector(-377.8, -117.8, 0), Vector(-377.8, -75, 0)),  # 16
    Part.ArcOfCircle(Part.Circle(Vector(-362.8, -75, 0), Vector(0, 0, 1), 15), math.radians(90), math.radians(180)),  # 17
    Part.LineSegment(Vector(-362.8, -60, 0), Vector(350, -60, 0)),  # 18
    Part.ArcOfCircle(Part.Circle(Vector(350, -75, 0), Vector(0, 0, 1), 15), math.radians(0), math.radians(90)),  # 19
    Part.LineSegment(Vector(365, -75, 0), Vector(365, -105, 0)),  # 20
    Part.ArcOfCircle(Part.Circle(Vector(350, -105, 0), Vector(0, 0, 1), 15), math.radians(-90), math.radians(0)),  # 21
    Part.LineSegment(Vector(350, -120, 0), Vector(-350, -120, 0)),  # 22
    Part.ArcOfCircle(Part.Circle(Vector(-350, -105, 0), Vector(0, 0, 1), 15), math.radians(180), math.radians(270)),  # 23
    Part.LineSegment(Vector(-365, -105, 0), Vector(-365, -71.8, 0)),  # 24
    Part.LineSegment(Vector(-365, -71.8, 0), Vector(-369.5, -71.8, 0)),  # 25
    Part.LineSegment(Vector(-369.5, -71.8, 0), Vector(-369.5, -106, 0)),  # 26
    Part.ArcOfCircle(Part.Circle(Vector(-351, -106, 0), Vector(0, 0, 1), 18.5), math.radians(180), math.radians(270)),  # 27
    Part.LineSegment(Vector(-351, -124.5, 0), Vector(351, -124.5, 0)),  # 28
    Part.ArcOfCircle(Part.Circle(Vector(351, -106, 0), Vector(0, 0, 1), 18.5), math.radians(-90), math.radians(0)),  # 29
    Part.LineSegment(Vector(369.5, -106, 0), Vector(369.5, -74, 0)),  # 30
    Part.ArcOfCircle(Part.Circle(Vector(351, -74, 0), Vector(0, 0, 1), 18.5), math.radians(0), math.radians(90)),  # 31
    Part.LineSegment(Vector(351, -55.5, 0), Vector(-363.8, -55.5, 0)),  # 32
    Part.ArcOfCircle(Part.Circle(Vector(-363.8, -74, 0), Vector(0, 0, 1), 18.5), math.radians(90), math.radians(180)),  # 33
    Part.LineSegment(Vector(-382.2, -74, 0), Vector(-382.2, -118.8, 0)),  # 34
    Part.ArcOfCircle(Part.Circle(Vector(-363.8, -118.8, 0), Vector(0, 0, 1), 18.5), math.radians(180), math.radians(270)),  # 35
    Part.LineSegment(Vector(-363.8, -137.2, 0), Vector(363.8, -137.2, 0)),  # 36
    Part.ArcOfCircle(Part.Circle(Vector(363.8, -118.8, 0), Vector(0, 0, 1), 18.5), math.radians(-90), math.radians(0)),  # 37
    Part.LineSegment(Vector(382.2, -118.8, 0), Vector(382.2, -50.9, 0)),  # 38
    Part.ArcOfCircle(Part.Circle(Vector(363.8, -50.9, 0), Vector(0, 0, 1), 18.5), math.radians(0), math.radians(90)),  # 39
    Part.LineSegment(Vector(363.8, -32.4, 0), Vector(-376.5, -32.4, 0)),  # 40
    Part.ArcOfCircle(Part.Circle(Vector(-376.5, -50.9, 0), Vector(0, 0, 1), 18.5), math.radians(90), math.radians(180)),  # 41
    Part.LineSegment(Vector(-395, -50.9, 0), Vector(-395, -131.5, 0)),  # 42
    Part.ArcOfCircle(Part.Circle(Vector(-376.5, -131.5, 0), Vector(0, 0, 1), 18.5), math.radians(180), math.radians(270)),  # 43
    Part.LineSegment(Vector(-376.5, -150, 0), Vector(376.5, -150, 0)),  # 44
    Part.ArcOfCircle(Part.Circle(Vector(376.5, -131.5, 0), Vector(0, 0, 1), 18.5), math.radians(-90), math.radians(0)),  # 45
    Part.LineSegment(Vector(395, -131.5, 0), Vector(395, -27.8, 0)),  # 46
    Part.ArcOfCircle(Part.Circle(Vector(376.5, -27.8, 0), Vector(0, 0, 1), 18.5), math.radians(0), math.radians(90)),  # 47
], False)
sketch3.addConstraint([
    Sketcher.Constraint("Coincident", 0, 2, 1, 1),
    Sketcher.Constraint("Coincident", 1, 2, 2, 1),
    Sketcher.Constraint("Tangent", 2, 2, 3, 2),
    Sketcher.Constraint("Tangent", 3, 1, 4, 1),
    Sketcher.Constraint("Tangent", 4, 2, 5, 2),
    Sketcher.Constraint("Tangent", 5, 1, 6, 1),
    Sketcher.Constraint("Tangent", 6, 2, 7, 2),
    Sketcher.Constraint("Tangent", 7, 1, 8, 1),
    Sketcher.Constraint("Tangent", 8, 2, 9, 2),
    Sketcher.Constraint("Tangent", 9, 1, 10, 1),
    Sketcher.Constraint("Tangent", 10, 2, 11, 2),
    Sketcher.Constraint("Tangent", 11, 1, 12, 1),
    Sketcher.Constraint("Tangent", 12, 2, 13, 2),
    Sketcher.Constraint("Tangent", 13, 1, 14, 1),
    Sketcher.Constraint("Tangent", 14, 2, 15, 2),
    Sketcher.Constraint("Tangent", 15, 1, 16, 1),
    Sketcher.Constraint("Tangent", 16, 2, 17, 2),
    Sketcher.Constraint("Tangent", 17, 1, 18, 1),
    Sketcher.Constraint("Tangent", 18, 2, 19, 2),
    Sketcher.Constraint("Tangent", 19, 1, 20, 1),
    Sketcher.Constraint("Tangent", 20, 2, 21, 2),
    Sketcher.Constraint("Tangent", 21, 1, 22, 1),
    Sketcher.Constraint("Tangent", 22, 2, 23, 2),
    Sketcher.Constraint("Tangent", 23, 1, 24, 1),
    Sketcher.Constraint("Coincident", 24, 2, 25, 1),
    Sketcher.Constraint("Coincident", 25, 2, 26, 1),
    Sketcher.Constraint("Tangent", 26, 2, 27, 1),
    Sketcher.Constraint("Tangent", 27, 2, 28, 1),
    Sketcher.Constraint("Tangent", 28, 2, 29, 1),
    Sketcher.Constraint("Tangent", 29, 2, 30, 1),
    Sketcher.Constraint("Tangent", 30, 2, 31, 1),
    Sketcher.Constraint("Tangent", 31, 2, 32, 1),
    Sketcher.Constraint("Tangent", 32, 2, 33, 1),
    Sketcher.Constraint("Tangent", 33, 2, 34, 1),
    Sketcher.Constraint("Tangent", 34, 2, 35, 1),
    Sketcher.Constraint("Tangent", 35, 2, 36, 1),
    Sketcher.Constraint("Tangent", 36, 2, 37, 1),
    Sketcher.Constraint("Tangent", 37, 2, 38, 1),
    Sketcher.Constraint("Tangent", 38, 2, 39, 1),
    Sketcher.Constraint("Tangent", 39, 2, 40, 1),
    Sketcher.Constraint("Tangent", 40, 2, 41, 1),
    Sketcher.Constraint("Tangent", 41, 2, 42, 1),
    Sketcher.Constraint("Tangent", 42, 2, 43, 1),
    Sketcher.Constraint("Tangent", 43, 2, 44, 1),
    Sketcher.Constraint("Tangent", 44, 2, 45, 1),
    Sketcher.Constraint("Tangent", 45, 2, 46, 1),
    Sketcher.Constraint("Tangent", 46, 2, 47, 1),
    Sketcher.Constraint("Tangent", 47, 2, 0, 1),
    Sketcher.Constraint("Horizontal", 0),
    Sketcher.Constraint("Vertical", 1),
    Sketcher.Constraint("Horizontal", 2),
    Sketcher.Constraint("Vertical", 4),
    Sketcher.Constraint("Horizontal", 6),
    Sketcher.Constraint("Vertical", 8),
    Sketcher.Constraint("Horizontal", 10),
    Sketcher.Constraint("Vertical", 12),
    Sketcher.Constraint("Horizontal", 14),
    Sketcher.Constraint("Vertical", 16),
    Sketcher.Constraint("Horizontal", 18),
    Sketcher.Constraint("Vertical", 20),
    Sketcher.Constraint("Horizontal", 22),
    Sketcher.Constraint("Vertical", 24),
    Sketcher.Constraint("Horizontal", 25),
    Sketcher.Constraint("Vertical", 26),
    Sketcher.Constraint("Horizontal", 28),
    Sketcher.Constraint("Vertical", 30),
    Sketcher.Constraint("Horizontal", 32),
    Sketcher.Constraint("Vertical", 34),
    Sketcher.Constraint("Horizontal", 36),
    Sketcher.Constraint("Vertical", 38),
    Sketcher.Constraint("Horizontal", 40),
    Sketcher.Constraint("Vertical", 42),
    Sketcher.Constraint("Horizontal", 44),
    Sketcher.Constraint("Vertical", 46),
    Sketcher.Constraint("Equal", 3, 5),
    Sketcher.Constraint("Equal", 5, 7),
    Sketcher.Constraint("Equal", 7, 9),
    Sketcher.Constraint("Equal", 9, 11),
    Sketcher.Constraint("Equal", 11, 13),
    Sketcher.Constraint("Equal", 13, 15),
    Sketcher.Constraint("Equal", 15, 17),
    Sketcher.Constraint("Equal", 17, 19),
    Sketcher.Constraint("Equal", 19, 21),
    Sketcher.Constraint("Equal", 21, 23),
    Sketcher.Constraint("Equal", 27, 29),
    Sketcher.Constraint("Equal", 29, 31),
    Sketcher.Constraint("Equal", 31, 33),
    Sketcher.Constraint("Equal", 33, 35),
    Sketcher.Constraint("Equal", 35, 37),
    Sketcher.Constraint("Equal", 37, 39),
    Sketcher.Constraint("Equal", 39, 41),
    Sketcher.Constraint("Equal", 41, 43),
    Sketcher.Constraint("Equal", 43, 45),
    Sketcher.Constraint("Equal", 45, 47),
    Sketcher.Constraint("PointOnObject", 0, 2, -2),
    Sketcher.Constraint("Equal", 25, 1),
    Sketcher.Constraint("Radius", 3, Q("15 mm")),
    Sketcher.Constraint("Radius", 27, Q("18.5 mm")),
    Sketcher.Constraint("DistanceX", 25, 2, 25, 1, Q("4.5 mm")),
    Sketcher.Constraint("DistanceX", 41, 2, -1, 1, Q("395 mm")),
    Sketcher.Constraint("DistanceY", 43, 2, -1, 1, Q("150 mm")),
    Sketcher.Constraint("DistanceX", -1, 1, 45, 2, Q("395 mm")),
    Sketcher.Constraint("DistanceY", 0, 2, -1, 1, Q("9.3 mm")),
    Sketcher.Constraint("DistanceX", 6, 2, 6, 1, Q("751 mm")),
    Sketcher.Constraint("DistanceX", 22, 2, 22, 1, Q("700 mm")),
    Sketcher.Constraint("DistanceX", 28, 1, 28, 2, Q("702 mm")),
    Sketcher.Constraint("DistanceY", 20, 2, 20, 1, Q("30 mm")),
    Sketcher.Constraint("DistanceY", 30, 1, 30, 2, Q("32 mm")),
    Sketcher.Constraint("DistanceX", 2, 1, 2, 2, Q("375.5 mm")),
    Sketcher.Constraint("DistanceX", 14, 2, 14, 1, Q("725.5 mm")),
    Sketcher.Constraint("DistanceX", 36, 1, 36, 2, Q("727.5 mm")),
    Sketcher.Constraint("DistanceY", 4, 2, 4, 1, Q("101.7 mm")),
    Sketcher.Constraint("DistanceY", 8, 1, 8, 2, Q("78.6 mm")),
    Sketcher.Constraint("DistanceY", 42, 2, 42, 1, Q("80.6 mm")),
    Sketcher.Constraint("DistanceY", 17, 3, -1, 1, Q("75 mm")),
    Sketcher.Constraint("DistanceX", -1, 1, 19, 3, Q("350 mm")),
    Sketcher.Constraint("DistanceY", 27, 3, -1, 1, Q("106 mm")),
    Sketcher.Constraint("DistanceX", 10, 1, 10, 2, Q("738.25 mm")),
    Sketcher.Constraint("DistanceX", 32, 2, 32, 1, Q("714.75 mm")),
    Sketcher.Constraint("DistanceY", 12, 2, 12, 1, Q("65.85 mm")),
    Sketcher.Constraint("DistanceY", 34, 2, 34, 1, Q("44.75 mm")),
    Sketcher.Constraint("DistanceY", 24, 1, 24, 2, Q("33.2437 mm")),
])
pocket2 = body.newObject("PartDesign::Pocket", "Pocket001")
pocket2.Profile = sketch3
pocket2.Length = 4.5
pocket2.Reversed = True

doc.recompute()
